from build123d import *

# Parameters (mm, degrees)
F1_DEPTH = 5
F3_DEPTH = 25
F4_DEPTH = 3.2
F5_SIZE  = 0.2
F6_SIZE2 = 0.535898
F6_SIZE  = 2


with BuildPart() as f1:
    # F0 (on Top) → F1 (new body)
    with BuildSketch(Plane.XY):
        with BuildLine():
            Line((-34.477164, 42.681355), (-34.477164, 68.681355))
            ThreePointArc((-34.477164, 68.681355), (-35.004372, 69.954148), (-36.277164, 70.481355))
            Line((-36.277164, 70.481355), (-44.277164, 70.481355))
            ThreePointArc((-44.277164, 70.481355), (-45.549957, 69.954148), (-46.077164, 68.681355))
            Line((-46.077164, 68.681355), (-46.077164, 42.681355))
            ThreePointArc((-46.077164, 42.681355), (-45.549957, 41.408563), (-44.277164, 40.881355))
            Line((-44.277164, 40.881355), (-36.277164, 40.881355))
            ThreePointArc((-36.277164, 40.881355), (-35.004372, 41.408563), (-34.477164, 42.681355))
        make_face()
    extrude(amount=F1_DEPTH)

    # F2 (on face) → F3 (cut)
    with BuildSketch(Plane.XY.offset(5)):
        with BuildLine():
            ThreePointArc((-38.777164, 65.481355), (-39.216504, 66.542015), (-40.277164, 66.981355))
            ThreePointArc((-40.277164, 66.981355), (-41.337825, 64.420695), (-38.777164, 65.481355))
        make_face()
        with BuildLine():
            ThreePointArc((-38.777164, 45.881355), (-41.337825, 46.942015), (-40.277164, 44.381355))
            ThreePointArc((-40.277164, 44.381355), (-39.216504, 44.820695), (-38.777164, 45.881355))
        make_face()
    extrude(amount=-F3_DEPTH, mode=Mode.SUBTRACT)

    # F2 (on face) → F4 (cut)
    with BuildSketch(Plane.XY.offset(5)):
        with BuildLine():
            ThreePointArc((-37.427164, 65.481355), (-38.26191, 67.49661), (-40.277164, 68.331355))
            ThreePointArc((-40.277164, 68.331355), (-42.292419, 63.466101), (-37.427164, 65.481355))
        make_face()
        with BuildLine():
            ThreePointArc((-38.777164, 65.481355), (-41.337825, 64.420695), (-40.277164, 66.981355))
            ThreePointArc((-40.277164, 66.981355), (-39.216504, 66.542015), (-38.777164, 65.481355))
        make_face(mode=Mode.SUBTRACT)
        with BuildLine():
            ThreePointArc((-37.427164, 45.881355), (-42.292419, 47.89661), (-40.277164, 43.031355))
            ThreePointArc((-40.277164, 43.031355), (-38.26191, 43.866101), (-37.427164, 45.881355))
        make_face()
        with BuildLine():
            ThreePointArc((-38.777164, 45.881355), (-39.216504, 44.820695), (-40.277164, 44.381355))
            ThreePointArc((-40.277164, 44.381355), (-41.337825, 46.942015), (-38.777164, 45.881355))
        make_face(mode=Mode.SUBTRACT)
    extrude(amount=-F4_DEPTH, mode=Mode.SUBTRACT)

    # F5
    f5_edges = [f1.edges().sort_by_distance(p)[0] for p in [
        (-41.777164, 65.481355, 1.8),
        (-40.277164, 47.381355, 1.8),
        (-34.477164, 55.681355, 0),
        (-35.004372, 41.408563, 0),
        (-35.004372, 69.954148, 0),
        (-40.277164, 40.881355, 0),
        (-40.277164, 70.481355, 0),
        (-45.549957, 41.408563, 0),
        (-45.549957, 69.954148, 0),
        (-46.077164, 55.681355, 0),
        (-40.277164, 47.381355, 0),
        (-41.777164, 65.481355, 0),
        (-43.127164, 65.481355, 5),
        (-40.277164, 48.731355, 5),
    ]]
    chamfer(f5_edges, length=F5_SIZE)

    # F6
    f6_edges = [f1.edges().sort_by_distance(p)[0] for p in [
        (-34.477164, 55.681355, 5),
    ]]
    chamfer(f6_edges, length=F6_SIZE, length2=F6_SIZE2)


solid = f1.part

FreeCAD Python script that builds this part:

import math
import FreeCAD as App
import Part
import Sketcher
Q = App.Units.Quantity


def edges_at(feature, points):
    """Names of the edges that pass closest to the given points."""
    edges = feature.Shape.Edges
    near = lambda p: min(range(len(edges)), key=lambda i: edges[i].distToShape(Part.Vertex(*p))[0])
    return sorted({f"Edge{near(p) + 1}" for p in points})

doc = App.newDocument("Part")
params = doc.addObject("Spreadsheet::Sheet", "Params")
for row, (alias, value) in enumerate([
    ("sketch1_radius", "1.799999 mm"),
    ("sketch1_width", "8 mm"),
    ("sketch1_height", "26 mm"),
    ("pad1_length", "5 mm"),
    ("sketch2_radius", "1.500001 mm"),
    ("pocket1_length", "25 mm"),
    ("sketch3_radius", "1.500001 mm"),
    ("sketch3_radius2", "2.849999 mm"),
    ("pocket2_length", "3.2 mm"),
    ("chamfer_size", "0.2 mm"),
    ("chamfer2_size", "2 mm"),
    ("chamfer2_size2", "0.535898 mm"),
], start=1):
    params.set(f"A{row}", alias)
    params.set(f"B{row}", "=" + value)
    params.setAlias(f"B{row}", alias)

body = doc.addObject("PartDesign::Body", "Body")

sketch1 = body.newObject("Sketcher::SketchObject", "Sketch")
sketch1.AttachmentSupport = (doc.getObject("XY_Plane"), [""])
sketch1.MapMode = "FlatFace"
sketch1.addGeometry([
    Part.LineSegment(App.Vector(-34.477164, 42.681355, 0), App.Vector(-34.477164, 68.681355, 0)),
    Part.ArcOfCircle(Part.Circle(App.Vector(-36.277163, 68.681356, 0), App.Vector(0, 0, 1), 1.799999), math.radians(-0.000032), math.radians(90.000032)),
    Part.LineSegment(App.Vector(-36.277164, 70.481355, 0), App.Vector(-44.277164, 70.481355, 0)),
    Part.ArcOfCircle(Part.Circle(App.Vector(-44.277167, 68.681358, 0), App.Vector(0, 0, 1), 1.799997), math.radians(89.999914), math.radians(180.000086)),
    Part.LineSegment(App.Vector(-46.077164, 68.681355, 0), App.Vector(-46.077164, 42.681355, 0)),
    Part.ArcOfCircle(Part.Circle(App.Vector(-44.277165, 42.681354, 0), App.Vector(0, 0, 1), 1.799999), math.radians(179.999968), math.radians(270.000032)),
    Part.LineSegment(App.Vector(-44.277164, 40.881355, 0), App.Vector(-36.277164, 40.881355, 0)),
    Part.ArcOfCircle(Part.Circle(App.Vector(-36.277165, 42.681356, 0), App.Vector(0, 0, 1), 1.800001), math.radians(-89.999978), math.radians(-0.000022)),
], False)
sketch1.addConstraint([
    Sketcher.Constraint("Tangent", 0, 2, 1, 1),
    Sketcher.Constraint("Tangent", 1, 2, 2, 1),
    Sketcher.Constraint("Tangent", 2, 2, 3, 1),
    Sketcher.Constraint("Tangent", 3, 2, 4, 1),
    Sketcher.Constraint("Tangent", 4, 2, 5, 1),
    Sketcher.Constraint("Tangent", 5, 2, 6, 1),
    Sketcher.Constraint("Tangent", 6, 2, 7, 1),
    Sketcher.Constraint("Tangent", 7, 2, 0, 1),
    Sketcher.Constraint("Vertical", 0),
    Sketcher.Constraint("Horizontal", 2),
    Sketcher.Constraint("Vertical", 4),
    Sketcher.Constraint("Horizontal", 6),
    Sketcher.Constraint("Equal", 1, 3),
    Sketcher.Constraint("Equal", 3, 5),
    Sketcher.Constraint("Equal", 5, 7),
    Sketcher.Constraint("Radius", 1, Q("1.799999 mm")),
    Sketcher.Constraint("DistanceX", 2, 2, 2, 1, Q("8 mm")),
    Sketcher.Constraint("DistanceY", 0, 1, 0, 2, Q("26 mm")),
    Sketcher.Constraint("DistanceX", 1, 3, -1, 1, Q("36.277163 mm")),
    Sketcher.Constraint("DistanceY", -1, 1, 1, 3, Q("68.681356 mm")),
])
sketch1.setExpression("Constraints[15]", "Params.sketch1_radius")
sketch1.setExpression("Constraints[16]", "Params.sketch1_width")
sketch1.setExpression("Constraints[17]", "Params.sketch1_height")
pad1 = body.newObject("PartDesign::Pad", "Pad")
pad1.Profile = sketch1
pad1.setExpression("Length", "Params.pad1_length")

sketch2 = body.newObject("Sketcher::SketchObject", "Sketch001")
sketch2.AttachmentSupport = (doc.getObject("XY_Plane"), [""])
sketch2.MapMode = "FlatFace"
sketch2.AttachmentOffset = App.Placement(App.Vector(0, 0, 5), App.Rotation())
sketch2.addGeometry([
    Part.ArcOfCircle(Part.Circle(App.Vector(-40.277165, 65.481354, 0), App.Vector(0, 0, 1), 1.500001), math.radians(0.000022), math.radians(89.999978)),
    Part.ArcOfCircle(Part.Circle(App.Vector(-40.277164, 65.481355, 0), App.Vector(0, 0, 1), 1.5), math.radians(89.999993), math.radians(360.000007)),
    Part.ArcOfCircle(Part.Circle(App.Vector(-40.277164, 45.881355, 0), App.Vector(0, 0, 1), 1.5), math.radians(-0.000007), math.radians(270.000007)),
    Part.ArcOfCircle(Part.Circle(App.Vector(-40.277165, 45.881356, 0), App.Vector(0, 0, 1), 1.500001), math.radians(-89.999978), math.radians(-0.000022)),
], False)
sketch2.addConstraint([
    Sketcher.Constraint("Tangent", 0, 1, 1, 2),
    Sketcher.Constraint("Coincident", 1, 1, 0, 2),
    Sketcher.Constraint("Tangent", 2, 1, 3, 2),
    Sketcher.Constraint("Coincident", 3, 1, 2, 2),
    Sketcher.Constraint("Equal", 1, 2),
    Sketcher.Constraint("Horizontal", 1, 3, 0, 1),
    Sketcher.Constraint("Horizontal", 3, 3, 2, 1),
    Sketcher.Constraint("Vertical", 1, 3, 2, 3),
    Sketcher.Constraint("Vertical", 3, 3, 1, 1),
    Sketcher.Constraint("Vertical", 1, 1, 3, 1),
    Sketcher.Constraint("Radius", 0, Q("1.500001 mm")),
    Sketcher.Constraint("DistanceY", 2, 3, 0, 3, Q("19.599999 mm")),
    Sketcher.Constraint("DistanceX", 0, 3, -1, 1, Q("40.277165 mm")),
    Sketcher.Constraint("DistanceY", -1, 1, 0, 3, Q("65.481354 mm")),
])
sketch2.setExpression("Constraints[10]", "Params.sketch2_radius")
pocket1 = body.newObject("PartDesign::Pocket", "Pocket")
pocket1.Profile = sketch2
pocket1.setExpression("Length", "Params.pocket1_length")

sketch3 = body.newObject("Sketcher::SketchObject", "Sketch002")
sketch3.AttachmentSupport = (doc.getObject("XY_Plane"), [""])
sketch3.MapMode = "FlatFace"
sketch3.AttachmentOffset = App.Placement(App.Vector(0, 0, 5), App.Rotation())
sketch3.addGeometry([
    Part.ArcOfCircle(Part.Circle(App.Vector(-40.277163, 65.481356, 0), App.Vector(0, 0, 1), 2.849999), math.radians(-0.000012), math.radians(90.000012)),
    Part.ArcOfCircle(Part.Circle(App.Vector(-40.277164, 65.481355, 0), App.Vector(0, 0, 1), 2.85), math.radians(89.999998), math.radians(360.000002)),
    Part.ArcOfCircle(Part.Circle(App.Vector(-40.277165, 65.481354, 0), App.Vector(0, 0, 1), 1.500001), math.radians(0.000022), math.radians(89.999978)),
    Part.ArcOfCircle(Part.Circle(App.Vector(-40.277164, 65.481355, 0), App.Vector(0, 0, 1), 1.5), math.radians(89.999993), math.radians(360.000007)),
    Part.ArcOfCircle(Part.Circle(App.Vector(-40.277164, 45.881355, 0), App.Vector(0, 0, 1), 2.85), math.radians(-0.000008), math.radians(270.000008)),
    Part.ArcOfCircle(Part.Circle(App.Vector(-40.277165, 45.881356, 0), App.Vector(0, 0, 1), 2.850001), math.radians(-89.999978), math.radians(-0.000022)),
    Part.ArcOfCircle(Part.Circle(App.Vector(-40.277164, 45.881355, 0), App.Vector(0, 0, 1), 1.5), math.radians(-0.000007), math.radians(270.000007)),
    Part.ArcOfCircle(Part.Circle(App.Vector(-40.277165, 45.881356, 0), App.Vector(0, 0, 1), 1.500001), math.radians(-89.999978), math.radians(-0.000022)),
], False)
sketch3.addConstraint([
    Sketcher.Constraint("Tangent", 0, 1, 1, 2),
    Sketcher.Constraint("Coincident", 1, 1, 0, 2),
    Sketcher.Constraint("Tangent", 2, 1, 3, 2),
    Sketcher.Constraint("Coincident", 3, 1, 2, 2),
    Sketcher.Constraint("Tangent", 4, 1, 5, 2),
    Sketcher.Constraint("Coincident", 5, 1, 4, 2),
    Sketcher.Constraint("Tangent", 6, 1, 7, 2),
    Sketcher.Constraint("Coincident", 7, 1, 6, 2),
    Sketcher.Constraint("Coincident", 2, 3, 0, 3),
    Sketcher.Constraint("Coincident", 6, 3, 4, 3),
    Sketcher.Constraint("Equal", 1, 4),
    Sketcher.Constraint("Equal", 3, 6),
    Sketcher.Constraint("Horizontal", 3, 3, 0, 1),
    Sketcher.Constraint("Horizontal", 0, 1, 2, 1),
    Sketcher.Constraint("Horizontal", 7, 3, 4, 1),
    Sketcher.Constraint("Horizontal", 4, 1, 6, 1),
    Sketcher.Constraint("Vertical", 3, 3, 4, 3),
    Sketcher.Constraint("Vertical", 7, 3, 1, 1),
    Sketcher.Constraint("Vertical", 1, 1, 3, 1),
    Sketcher.Constraint("Vertical", 3, 1, 5, 1),
    Sketcher.Constraint("Vertical", 5, 1, 7, 1),
    Sketcher.Constraint("Radius", 2, Q("1.500001 mm")),
    Sketcher.Constraint("Radius", 0, Q("2.849999 mm")),
    Sketcher.Constraint("DistanceY", 4, 3, 2, 3, Q("19.599999 mm")),
    Sketcher.Constraint("DistanceX", 0, 3, -1, 1, Q("40.277163 mm")),
    Sketcher.Constraint("DistanceY", -1, 1, 0, 3, Q("65.481356 mm")),
])
sketch3.setExpression("Constraints[21]", "Params.sketch3_radius")
sketch3.setExpression("Constraints[22]", "Params.sketch3_radius2")
pocket2 = body.newObject("PartDesign::Pocket", "Pocket001")
pocket2.Profile = sketch3
pocket2.setExpression("Length", "Params.pocket2_length")
doc.recompute()

chamfer = body.newObject("PartDesign::Chamfer", "Chamfer")
chamfer.Base = (pocket2, edges_at(pocket2, [
    (-41.338, 64.421, 1.8),
    (-41.338, 46.942, 1.8),
    (-34.477, 55.681, 0),
    (-35.004, 41.409, 0),
    (-35.004, 69.954, 0),
    (-40.277, 40.881, 0),
    (-40.277, 70.481, 0),
    (-45.55, 41.409, 0),
    (-45.55, 69.954, 0),
    (-46.077, 55.681, 0),
    (-41.338, 46.942, 0),
    (-41.338, 64.421, 0),
    (-42.292, 63.466, 5),
    (-42.292, 47.897, 5),
]))
chamfer.setExpression("Size", "Params.chamfer_size")
doc.recompute()

chamfer2 = body.newObject("PartDesign::Chamfer", "Chamfer001")
chamfer2.Base = (chamfer, edges_at(chamfer, [(-34.477, 55.681, 5)]))
chamfer2.ChamferType = "Two distances"
chamfer2.setExpression("Size", "Params.chamfer2_size")
chamfer2.setExpression("Size2", "Params.chamfer2_size2")

doc.recompute()
